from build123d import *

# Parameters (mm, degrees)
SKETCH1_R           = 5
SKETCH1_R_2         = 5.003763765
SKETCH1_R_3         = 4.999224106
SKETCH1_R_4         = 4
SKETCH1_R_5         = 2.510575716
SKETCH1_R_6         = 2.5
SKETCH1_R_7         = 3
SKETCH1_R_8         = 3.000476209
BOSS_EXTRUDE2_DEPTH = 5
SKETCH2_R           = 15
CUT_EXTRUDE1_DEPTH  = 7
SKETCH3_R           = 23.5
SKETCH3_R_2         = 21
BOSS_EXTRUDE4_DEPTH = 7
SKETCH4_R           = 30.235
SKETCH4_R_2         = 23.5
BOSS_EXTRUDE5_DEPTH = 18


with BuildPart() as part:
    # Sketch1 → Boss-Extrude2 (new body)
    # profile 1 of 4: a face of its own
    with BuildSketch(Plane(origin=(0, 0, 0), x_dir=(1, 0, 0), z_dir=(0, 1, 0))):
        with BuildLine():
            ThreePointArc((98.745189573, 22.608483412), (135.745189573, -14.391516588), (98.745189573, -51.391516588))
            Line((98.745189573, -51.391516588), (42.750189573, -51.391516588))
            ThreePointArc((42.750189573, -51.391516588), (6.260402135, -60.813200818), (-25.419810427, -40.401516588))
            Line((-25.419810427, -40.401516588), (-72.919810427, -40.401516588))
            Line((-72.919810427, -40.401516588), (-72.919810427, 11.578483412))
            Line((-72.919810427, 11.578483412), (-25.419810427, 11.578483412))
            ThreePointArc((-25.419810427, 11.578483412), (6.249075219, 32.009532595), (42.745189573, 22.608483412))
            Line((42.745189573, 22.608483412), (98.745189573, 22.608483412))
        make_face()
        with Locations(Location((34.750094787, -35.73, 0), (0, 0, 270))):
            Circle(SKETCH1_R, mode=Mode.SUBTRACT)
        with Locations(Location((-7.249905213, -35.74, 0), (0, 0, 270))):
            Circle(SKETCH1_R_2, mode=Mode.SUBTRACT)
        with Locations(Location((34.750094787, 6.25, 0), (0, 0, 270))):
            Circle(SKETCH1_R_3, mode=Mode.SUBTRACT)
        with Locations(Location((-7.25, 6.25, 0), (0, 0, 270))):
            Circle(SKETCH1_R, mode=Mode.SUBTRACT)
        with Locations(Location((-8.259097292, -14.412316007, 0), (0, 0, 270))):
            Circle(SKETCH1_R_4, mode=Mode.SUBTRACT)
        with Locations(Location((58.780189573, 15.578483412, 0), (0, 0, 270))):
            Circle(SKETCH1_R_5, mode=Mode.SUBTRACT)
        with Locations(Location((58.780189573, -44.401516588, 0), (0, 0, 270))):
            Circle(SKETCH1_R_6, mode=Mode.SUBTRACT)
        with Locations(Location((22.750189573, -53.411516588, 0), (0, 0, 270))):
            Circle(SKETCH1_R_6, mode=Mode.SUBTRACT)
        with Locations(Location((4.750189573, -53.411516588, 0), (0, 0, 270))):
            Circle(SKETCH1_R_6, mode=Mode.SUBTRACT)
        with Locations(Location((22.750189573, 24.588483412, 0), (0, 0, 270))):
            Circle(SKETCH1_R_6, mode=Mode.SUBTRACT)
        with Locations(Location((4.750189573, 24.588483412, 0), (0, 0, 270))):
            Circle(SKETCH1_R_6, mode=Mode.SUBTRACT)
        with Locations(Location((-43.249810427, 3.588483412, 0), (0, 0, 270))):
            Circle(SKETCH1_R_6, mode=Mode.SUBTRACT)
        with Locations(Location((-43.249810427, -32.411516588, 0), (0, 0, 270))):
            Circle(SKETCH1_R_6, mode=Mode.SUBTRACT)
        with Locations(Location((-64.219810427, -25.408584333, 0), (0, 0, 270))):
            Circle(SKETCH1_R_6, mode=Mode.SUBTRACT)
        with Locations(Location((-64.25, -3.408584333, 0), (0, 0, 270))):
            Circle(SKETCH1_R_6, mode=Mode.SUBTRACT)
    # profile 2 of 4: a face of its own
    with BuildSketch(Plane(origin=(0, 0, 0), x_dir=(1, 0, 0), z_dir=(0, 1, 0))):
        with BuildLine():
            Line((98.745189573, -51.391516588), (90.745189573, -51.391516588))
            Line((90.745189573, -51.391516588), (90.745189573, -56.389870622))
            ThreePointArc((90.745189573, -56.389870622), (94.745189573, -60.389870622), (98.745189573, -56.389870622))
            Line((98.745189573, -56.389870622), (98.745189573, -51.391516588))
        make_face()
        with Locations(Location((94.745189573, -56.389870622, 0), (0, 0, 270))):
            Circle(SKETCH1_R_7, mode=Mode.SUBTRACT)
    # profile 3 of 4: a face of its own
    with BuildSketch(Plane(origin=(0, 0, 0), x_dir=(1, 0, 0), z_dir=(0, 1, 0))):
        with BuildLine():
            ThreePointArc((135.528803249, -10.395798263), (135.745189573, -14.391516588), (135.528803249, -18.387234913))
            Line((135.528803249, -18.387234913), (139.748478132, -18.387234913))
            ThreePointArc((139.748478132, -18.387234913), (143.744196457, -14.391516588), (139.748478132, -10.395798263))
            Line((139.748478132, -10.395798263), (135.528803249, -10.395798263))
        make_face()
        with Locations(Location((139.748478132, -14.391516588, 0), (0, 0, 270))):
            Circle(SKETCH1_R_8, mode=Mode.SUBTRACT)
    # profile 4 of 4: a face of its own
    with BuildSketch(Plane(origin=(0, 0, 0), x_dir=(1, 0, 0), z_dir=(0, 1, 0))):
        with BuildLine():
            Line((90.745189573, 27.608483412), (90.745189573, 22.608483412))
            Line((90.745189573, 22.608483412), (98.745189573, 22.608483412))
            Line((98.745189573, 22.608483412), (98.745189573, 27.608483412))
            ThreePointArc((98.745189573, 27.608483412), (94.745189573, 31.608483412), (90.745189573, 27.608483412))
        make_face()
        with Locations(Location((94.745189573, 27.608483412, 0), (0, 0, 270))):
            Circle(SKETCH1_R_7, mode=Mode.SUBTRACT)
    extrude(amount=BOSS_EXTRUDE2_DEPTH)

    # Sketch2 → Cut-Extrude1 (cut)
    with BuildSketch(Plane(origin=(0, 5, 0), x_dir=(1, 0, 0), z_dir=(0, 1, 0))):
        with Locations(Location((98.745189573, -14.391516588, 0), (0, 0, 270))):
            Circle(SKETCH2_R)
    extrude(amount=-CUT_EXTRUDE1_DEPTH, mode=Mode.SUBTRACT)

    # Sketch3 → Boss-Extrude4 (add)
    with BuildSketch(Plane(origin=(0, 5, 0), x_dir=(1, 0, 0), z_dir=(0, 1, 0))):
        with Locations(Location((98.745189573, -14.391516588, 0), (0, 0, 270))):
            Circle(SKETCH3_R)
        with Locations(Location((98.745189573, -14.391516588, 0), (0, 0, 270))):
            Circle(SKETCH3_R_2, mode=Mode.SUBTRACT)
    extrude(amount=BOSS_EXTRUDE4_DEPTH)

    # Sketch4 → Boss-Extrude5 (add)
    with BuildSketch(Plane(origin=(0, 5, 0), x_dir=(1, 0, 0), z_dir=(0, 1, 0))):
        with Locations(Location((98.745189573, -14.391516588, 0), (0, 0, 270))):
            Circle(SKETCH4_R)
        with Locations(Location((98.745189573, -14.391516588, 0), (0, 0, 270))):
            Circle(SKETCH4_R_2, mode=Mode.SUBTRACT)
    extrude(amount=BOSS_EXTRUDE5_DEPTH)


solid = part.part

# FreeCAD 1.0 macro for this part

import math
import FreeCAD as App
import Part
import Sketcher
from FreeCAD import Vector
Q = App.Units.Quantity

doc = App.newDocument("Part")
body = doc.addObject("PartDesign::Body", "Body")

# Sketch on XZ plane
sketch1 = doc.addObject("Sketcher::SketchObject", "Sketch")
body.addObject(sketch1)
sketch1.AttachmentSupport = (doc.XZ_Plane, [""])
sketch1.MapMode = "FlatFace"
sketch1.addGeometry([
    Part.ArcOfCircle(Part.Circle(Vector(98.7, 14.4, 0), Vector(0, 0, 1), 37), math.radians(-90), math.radians(-6)),  # 0
    Part.LineSegment(Vector(98.7, -22.6, 0), Vector(98.7, -27.6, 0)),  # 1
    Part.ArcOfCircle(Part.Circle(Vector(94.7, -27.6, 0), Vector(0, 0, 1), 4), math.radians(180), math.radians(360)),  # 2
    Part.LineSegment(Vector(90.7, -27.6, 0), Vector(90.7, -22.6, 0)),  # 3
    Part.LineSegment(Vector(90.7, -22.6, 0), Vector(42.7, -22.6, 0)),  # 4
    Part.ArcOfCircle(Part.Circle(Vector(13.8, 14.4, 0), Vector(0, 0, 1), 47), math.radians(-146), math.radians(-52)),  # 5
    Part.LineSegment(Vector(-25.4, -11.6, 0), Vector(-72.9, -11.6, 0)),  # 6
    Part.LineSegment(Vector(-72.9, -11.6, 0), Vector(-72.9, 40.4, 0)),  # 7
    Part.LineSegment(Vector(-72.9, 40.4, 0), Vector(-25.4, 40.4, 0)),  # 8
    Part.ArcOfCircle(Part.Circle(Vector(13.7, 14.4, 0), Vector(0, 0, 1), 47), math.radians(52), math.radians(146)),  # 9
    Part.LineSegment(Vector(42.8, 51.4, 0), Vector(90.7, 51.4, 0)),  # 10
    Part.LineSegment(Vector(90.7, 51.4, 0), Vector(90.7, 56.4, 0)),  # 11
    Part.ArcOfCircle(Part.Circle(Vector(94.7, 56.4, 0), Vector(0, 0, 1), 4), math.radians(0), math.radians(180)),  # 12
    Part.LineSegment(Vector(98.7, 56.4, 0), Vector(98.7, 51.4, 0)),  # 13
    Part.ArcOfCircle(Part.Circle(Vector(98.7, 14.4, 0), Vector(0, 0, 1), 37), math.radians(6), math.radians(90)),  # 14
    Part.LineSegment(Vector(135.5, 18.4, 0), Vector(139.7, 18.4, 0)),  # 15
    Part.ArcOfCircle(Part.Circle(Vector(139.7, 14.4, 0), Vector(0, 0, 1), 4), math.radians(-90), math.radians(90)),  # 16
    Part.LineSegment(Vector(139.7, 10.4, 0), Vector(135.5, 10.4, 0)),  # 17
    Part.Circle(Vector(58.8, 44.4, 0), Vector(0, 0, 1), 2.5),  # 18
    Part.Circle(Vector(34.8, 35.7, 0), Vector(0, 0, 1), 5),  # 19
    Part.Circle(Vector(22.8, 53.4, 0), Vector(0, 0, 1), 2.5),  # 20
    Part.Circle(Vector(4.8, 53.4, 0), Vector(0, 0, 1), 2.5),  # 21
    Part.Circle(Vector(-7.2, 35.7, 0), Vector(0, 0, 1), 5),  # 22
    Part.Circle(Vector(-8.3, 14.4, 0), Vector(0, 0, 1), 4),  # 23
    Part.Circle(Vector(-43.2, 32.4, 0), Vector(0, 0, 1), 2.5),  # 24
    Part.Circle(Vector(-64.2, 25.4, 0), Vector(0, 0, 1), 2.5),  # 25
    Part.Circle(Vector(34.8, -6.2, 0), Vector(0, 0, 1), 5),  # 26
    Part.Circle(Vector(58.8, -15.6, 0), Vector(0, 0, 1), 2.5),  # 27
    Part.Circle(Vector(22.8, -24.6, 0), Vector(0, 0, 1), 2.5),  # 28
    Part.Circle(Vector(4.8, -24.6, 0), Vector(0, 0, 1), 2.5),  # 29
    Part.Circle(Vector(-7.2, -6.2, 0), Vector(0, 0, 1), 5),  # 30
    Part.Circle(Vector(-43.2, -3.6, 0), Vector(0, 0, 1), 2.5),  # 31
    Part.Circle(Vector(-64.2, 3.4, 0), Vector(0, 0, 1), 2.5),  # 32
    Part.Circle(Vector(139.7, 14.4, 0), Vector(0, 0, 1), 3),  # 33
    Part.Circle(Vector(94.7, -27.6, 0), Vector(0, 0, 1), 3),  # 34
    Part.Circle(Vector(94.7, 56.4, 0), Vector(0, 0, 1), 3),  # 35
], False)
sketch1.addConstraint([
    Sketcher.Constraint("Coincident", 0, 1, 1, 1),
    Sketcher.Constraint("Tangent", 1, 2, 2, 2),
    Sketcher.Constraint("Tangent", 2, 1, 3, 1),
    Sketcher.Constraint("Coincident", 3, 2, 4, 1),
    Sketcher.Constraint("Coincident", 4, 2, 5, 2),
    Sketcher.Constraint("Coincident", 5, 1, 6, 1),
    Sketcher.Constraint("Coincident", 6, 2, 7, 1),
    Sketcher.Constraint("Coincident", 7, 2, 8, 1),
    Sketcher.Constraint("Coincident", 8, 2, 9, 2),
    Sketcher.Constraint("Coincident", 9, 1, 10, 1),
    Sketcher.Constraint("Coincident", 10, 2, 11, 1),
    Sketcher.Constraint("Tangent", 11, 2, 12, 2),
    Sketcher.Constraint("Tangent", 12, 1, 13, 1),
    Sketcher.Constraint("Coincident", 13, 2, 14, 2),
    Sketcher.Constraint("Coincident", 14, 1, 15, 1),
    Sketcher.Constraint("Tangent", 15, 2, 16, 2),
    Sketcher.Constraint("Tangent", 16, 1, 17, 1),
    Sketcher.Constraint("Coincident", 17, 2, 0, 2),
    Sketcher.Constraint("Vertical", 1),
    Sketcher.Constraint("Vertical", 3),
    Sketcher.Constraint("Horizontal", 4),
    Sketcher.Constraint("Horizontal", 6),
    Sketcher.Constraint("Vertical", 7),
    Sketcher.Constraint("Horizontal", 8),
    Sketcher.Constraint("Horizontal", 10),
    Sketcher.Constraint("Vertical", 11),
    Sketcher.Constraint("Vertical", 13),
    Sketcher.Constraint("Horizontal", 15),
    Sketcher.Constraint("Horizontal", 17),
    Sketcher.Constraint("Coincident", 14, 3, 0, 3),
    Sketcher.Constraint("Coincident", 33, 3, 16, 3),
    Sketcher.Constraint("Coincident", 34, 3, 2, 3),
    Sketcher.Constraint("Coincident", 35, 3, 12, 3),
    Sketcher.Constraint("Equal", 5, 9),
    Sketcher.Constraint("Equal", 2, 12),
    Sketcher.Constraint("Equal", 0, 14),
    Sketcher.Constraint("Equal", 18, 20),
    Sketcher.Constraint("Equal", 20, 21),
    Sketcher.Constraint("Equal", 12, 23),
    Sketcher.Constraint("Equal", 21, 24),
    Sketcher.Constraint("Equal", 24, 25),
    Sketcher.Constraint("Equal", 25, 28),
    Sketcher.Constraint("Equal", 28, 29),
    Sketcher.Constraint("Equal", 19, 30),
    Sketcher.Constraint("Equal", 29, 31),
    Sketcher.Constraint("Equal", 31, 32),
    Sketcher.Constraint("Equal", 34, 35),
    Sketcher.Constraint("Horizontal", 14, 3, 16, 3),
    Sketcher.Constraint("Horizontal", 20, 3, 21, 3),
    Sketcher.Constraint("Horizontal", 9, 3, 23, 3),
    Sketcher.Constraint("Horizontal", 28, 3, 29, 3),
    Sketcher.Constraint("Horizontal", 26, 3, 30, 3),
    Sketcher.Constraint("Horizontal", 0, 1, 3, 2),
    Sketcher.Constraint("Horizontal", 10, 2, 13, 2),
    Sketcher.Constraint("Vertical", 2, 3, 12, 3),
    Sketcher.Constraint("Vertical", 19, 3, 26, 3),
    Sketcher.Constraint("Vertical", 18, 3, 27, 3),
    Sketcher.Constraint("Vertical", 20, 3, 28, 3),
    Sketcher.Constraint("Vertical", 21, 3, 29, 3),
    Sketcher.Constraint("Vertical", 24, 3, 31, 3),
    Sketcher.Constraint("Vertical", 14, 3, 0, 1),
    Sketcher.Constraint("Vertical", 5, 1, 8, 2),
    Sketcher.Constraint("Diameter", 18, Q("5 mm")),
    Sketcher.Constraint("Diameter", 19, Q("10 mm")),
    Sketcher.Constraint("Diameter", 23, Q("8 mm")),
    Sketcher.Constraint("Diameter", 34, Q("6 mm")),
    Sketcher.Constraint("Radius", 0, Q("37 mm")),
    Sketcher.Constraint("Radius", 5, Q("47 mm")),
    Sketcher.Constraint("DistanceX", 4, 2, 4, 1, Q("48 mm")),
    Sketcher.Constraint("DistanceY", 1, 2, 1, 1, Q("5 mm")),
    Sketcher.Constraint("DistanceX", 6, 2, 6, 1, Q("47.5 mm")),
    Sketcher.Constraint("DistanceX", 21, 3, 20, 3, Q("18 mm")),
    Sketcher.Constraint("DistanceX", 22, 3, 19, 3, Q("42 mm")),
    Sketcher.Constraint("DistanceX", 23, 3, 9, 3, Q("22 mm")),
    Sketcher.Constraint("DistanceX", 24, 3, 21, 3, Q("48 mm")),
    Sketcher.Constraint("DistanceY", 24, 3, 21, 3, Q("21 mm")),
    Sketcher.Constraint("DistanceY", 31, 3, 24, 3, Q("36 mm")),
    Sketcher.Constraint("DistanceY", 29, 3, 31, 3, Q("21 mm")),
    Sketcher.Constraint("DistanceY", 32, 3, 25, 3, Q("22 mm")),
    Sketcher.Constraint("DistanceX", 32, 3, 30, 3, Q("57 mm")),
    Sketcher.Constraint("DistanceX", 20, 3, 9, 1, Q("20 mm")),
    Sketcher.Constraint("DistanceY", 7, 1, 7, 2, Q("51.98 mm")),
    Sketcher.Constraint("DistanceX", 6, 2, 25, 3, Q("8.7 mm")),
    Sketcher.Constraint("Diameter", 26, Q("9.998448 mm")),
    Sketcher.Constraint("Diameter", 27, Q("5.021151 mm")),
    Sketcher.Constraint("DistanceX", 10, 1, 10, 2, Q("47.995 mm")),
    Sketcher.Constraint("DistanceY", -1, 1, 19, 3, Q("35.73 mm")),
    Sketcher.Constraint("DistanceY", -1, 1, 22, 3, Q("35.74 mm")),
    Sketcher.Constraint("DistanceY", 26, 3, -1, 1, Q("6.25 mm")),
    Sketcher.Constraint("DistanceX", 30, 3, -1, 1, Q("7.25 mm")),
    Sketcher.Constraint("Radius", 16, Q("3.995718 mm")),
    Sketcher.Constraint("DistanceY", 0, 3, 18, 3, Q("30.01 mm")),
    Sketcher.Constraint("DistanceX", 20, 3, 18, 3, Q("36.03 mm")),
    Sketcher.Constraint("DistanceY", 18, 3, 20, 3, Q("9.01 mm")),
    Sketcher.Constraint("DistanceX", 25, 3, 24, 3, Q("20.97 mm")),
    Sketcher.Constraint("DistanceY", 2, 3, 27, 3, Q("12.03 mm")),
    Sketcher.Constraint("DistanceY", 5, 1, 31, 3, Q("7.99 mm")),
    Sketcher.Constraint("Diameter", 22, Q("10.007528 mm")),
    Sketcher.Constraint("Diameter", 33, Q("6.000952 mm")),
    Sketcher.Constraint("DistanceY", -1, 1, 16, 1, Q("10.395798 mm")),
    Sketcher.Constraint("DistanceX", 15, 1, 15, 2, Q("4.219675 mm")),
    Sketcher.Constraint("DistanceY", 11, 1, 11, 2, Q("4.998354 mm")),
    Sketcher.Constraint("DistanceX", -1, 1, 0, 3, Q("98.74519 mm")),
    Sketcher.Constraint("DistanceX", 5, 3, 19, 3, Q("20.993449 mm")),
    Sketcher.Constraint("DistanceY", 23, 3, 25, 3, Q("10.996268 mm")),
])
pad1 = doc.addObject("PartDesign::Pad", "Pad")
body.addObject(pad1)
pad1.Profile = sketch1
pad1.Length = 5
pad1.Reversed = True

# Sketch on XZ plane
sketch2 = doc.addObject("Sketcher::SketchObject", "Sketch001")
body.addObject(sketch2)
sketch2.AttachmentSupport = (doc.XZ_Plane, [""])
sketch2.MapMode = "FlatFace"
sketch2.AttachmentOffset = App.Placement(Vector(0, 0, -5), App.Rotation())
sketch2.addGeometry(Part.Circle(Vector(99, 14, 0), Vector(0, 0, 1), 15), False)
sketch2.addConstraint([
    Sketcher.Constraint("Diameter", 0, Q("30 mm")),
    Sketcher.Constraint("DistanceX", -1, 1, 0, 3, Q("98.74519 mm")),
    Sketcher.Constraint("DistanceY", -1, 1, 0, 3, Q("14.391517 mm")),
])
pocket1 = doc.addObject("PartDesign::Pocket", "Pocket")
body.addObject(pocket1)
pocket1.Profile = sketch2
pocket1.Length = 7
pocket1.Reversed = True

# Sketch on XZ plane
sketch3 = doc.addObject("Sketcher::SketchObject", "Sketch002")
body.addObject(sketch3)
sketch3.AttachmentSupport = (doc.XZ_Plane, [""])
sketch3.MapMode = "FlatFace"
sketch3.AttachmentOffset = App.Placement(Vector(0, 0, -5), App.Rotation())
sketch3.addGeometry([
    Part.Circle(Vector(99, 14, 0), Vector(0, 0, 1), 24),
    Part.Circle(Vector(99, 14, 0), Vector(0, 0, 1), 21),
], False)
sketch3.addConstraint([
    Sketcher.Constraint("Coincident", 1, 3, 0, 3),
    Sketcher.Constraint("Diameter", 0, Q("47 mm")),
    Sketcher.Constraint("Diameter", 1, Q("42 mm")),
    Sketcher.Constraint("DistanceX", -1, 1, 0, 3, Q("98.74519 mm")),
    Sketcher.Constraint("DistanceY", -1, 1, 0, 3, Q("14.391517 mm")),
])
pad2 = doc.addObject("PartDesign::Pad", "Pad001")
body.addObject(pad2)
pad2.Profile = sketch3
pad2.Length = 7
pad2.Reversed = True

# Sketch on XZ plane
sketch4 = doc.addObject("Sketcher::SketchObject", "Sketch003")
body.addObject(sketch4)
sketch4.AttachmentSupport = (doc.XZ_Plane, [""])
sketch4.MapMode = "FlatFace"
sketch4.AttachmentOffset = App.Placement(Vector(0, 0, -5), App.Rotation())
sketch4.addGeometry([
    Part.Circle(Vector(99, 14, 0), Vector(0, 0, 1), 30),
    Part.Circle(Vector(99, 14, 0), Vector(0, 0, 1), 24),
], False)
sketch4.addConstraint([
    Sketcher.Constraint("Coincident", 1, 3, 0, 3),
    Sketcher.Constraint("Diameter", 1, Q("47 mm")),
    Sketcher.Constraint("Diameter", 0, Q("60.47 mm")),
    Sketcher.Constraint("DistanceX", -1, 1, 0, 3, Q("98.74519 mm")),
    Sketcher.Constraint("DistanceY", -1, 1, 0, 3, Q("14.391517 mm")),
])
pad3 = doc.addObject("PartDesign::Pad", "Pad002")
body.addObject(pad3)
pad3.Profile = sketch4
pad3.Length = 18
pad3.Reversed = True

doc.recompute()
